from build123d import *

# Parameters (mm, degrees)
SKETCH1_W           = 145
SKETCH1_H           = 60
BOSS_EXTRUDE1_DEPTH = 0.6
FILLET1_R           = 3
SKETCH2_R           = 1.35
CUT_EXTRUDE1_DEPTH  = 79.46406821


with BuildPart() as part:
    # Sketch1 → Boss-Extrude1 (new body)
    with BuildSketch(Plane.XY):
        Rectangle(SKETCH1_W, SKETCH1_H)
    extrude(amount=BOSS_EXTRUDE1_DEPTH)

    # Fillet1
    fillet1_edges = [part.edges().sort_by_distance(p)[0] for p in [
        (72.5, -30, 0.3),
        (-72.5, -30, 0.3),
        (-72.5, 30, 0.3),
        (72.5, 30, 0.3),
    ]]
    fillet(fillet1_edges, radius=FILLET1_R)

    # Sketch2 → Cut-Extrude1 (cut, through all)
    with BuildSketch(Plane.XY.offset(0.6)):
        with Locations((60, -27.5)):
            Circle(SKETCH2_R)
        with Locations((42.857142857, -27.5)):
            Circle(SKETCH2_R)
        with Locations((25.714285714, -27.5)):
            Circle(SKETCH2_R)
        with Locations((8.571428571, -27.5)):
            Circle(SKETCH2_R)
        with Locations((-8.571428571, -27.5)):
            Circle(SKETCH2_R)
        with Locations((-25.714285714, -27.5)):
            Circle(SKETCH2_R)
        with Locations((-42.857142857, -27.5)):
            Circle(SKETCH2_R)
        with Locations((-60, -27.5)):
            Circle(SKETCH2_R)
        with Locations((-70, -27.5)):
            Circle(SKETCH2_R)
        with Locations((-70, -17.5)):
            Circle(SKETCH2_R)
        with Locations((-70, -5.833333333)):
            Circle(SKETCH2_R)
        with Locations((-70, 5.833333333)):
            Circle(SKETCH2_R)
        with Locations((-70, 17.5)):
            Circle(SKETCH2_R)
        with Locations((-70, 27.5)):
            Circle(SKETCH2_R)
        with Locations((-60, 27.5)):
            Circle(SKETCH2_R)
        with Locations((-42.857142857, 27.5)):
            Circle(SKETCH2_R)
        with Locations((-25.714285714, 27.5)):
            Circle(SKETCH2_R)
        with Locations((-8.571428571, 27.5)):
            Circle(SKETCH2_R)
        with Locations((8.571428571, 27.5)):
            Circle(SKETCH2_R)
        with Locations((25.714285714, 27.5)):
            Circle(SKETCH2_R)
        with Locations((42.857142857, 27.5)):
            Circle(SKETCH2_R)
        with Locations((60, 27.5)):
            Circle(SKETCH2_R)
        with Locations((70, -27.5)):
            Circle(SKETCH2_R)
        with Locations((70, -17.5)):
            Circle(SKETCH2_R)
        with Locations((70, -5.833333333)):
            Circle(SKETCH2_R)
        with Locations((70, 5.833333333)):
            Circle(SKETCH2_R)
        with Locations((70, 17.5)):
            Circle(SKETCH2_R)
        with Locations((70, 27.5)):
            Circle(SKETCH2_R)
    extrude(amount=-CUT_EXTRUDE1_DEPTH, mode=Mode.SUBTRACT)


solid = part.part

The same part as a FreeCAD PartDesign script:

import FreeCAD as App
import Part
import Sketcher
from FreeCAD import Vector


def edges_at(feature, points):
    """Names of the edges that pass closest to the given points."""
    edges = feature.Shape.Edges
    near = lambda p: min(range(len(edges)), key=lambda i: edges[i].distToShape(Part.Vertex(*p))[0])
    return sorted({f"Edge{near(p) + 1}" for p in points})

doc = App.newDocument("Part")
body = doc.addObject("PartDesign::Body", "Body")

sketch1 = body.newObject("Sketcher::SketchObject", "Sketch")
sketch1.AttachmentSupport = (doc.getObject("XY_Plane"), [""])
sketch1.MapMode = "FlatFace"
sketch1.addGeometry([
    Part.LineSegment(Vector(-72.5, 30, 0), Vector(-72.5, -30, 0)),
    Part.LineSegment(Vector(-72.5, -30, 0), Vector(72.5, -30, 0)),
    Part.LineSegment(Vector(72.5, -30, 0), Vector(72.5, 30, 0)),
    Part.LineSegment(Vector(72.5, 30, 0), Vector(-72.5, 30, 0)),
], False)
sketch1.addConstraint([
    Sketcher.Constraint("Coincident", 0, 2, 1, 1),
    Sketcher.Constraint("Coincident", 1, 2, 2, 1),
    Sketcher.Constraint("Coincident", 2, 2, 3, 1),
    Sketcher.Constraint("Coincident", 3, 2, 0, 1),
    Sketcher.Constraint("Vertical", 0),
    Sketcher.Constraint("Horizontal", 1),
    Sketcher.Constraint("Vertical", 2),
    Sketcher.Constraint("Horizontal", 3),
    Sketcher.Constraint("Symmetric", 0, 2, 2, 2, -1, 1),
    Sketcher.Constraint("DistanceX", 1, 1, 1, 2, 145.0),
    Sketcher.Constraint("DistanceY", 0, 2, 0, 1, 60.0),
])
pad1 = body.newObject("PartDesign::Pad", "Pad")
pad1.Profile = sketch1
pad1.Length = 0.6
doc.recompute()

fillet = body.newObject("PartDesign::Fillet", "Fillet")
fillet.Base = (pad1, edges_at(pad1, [
    (72.5, -30, 0.3),
    (-72.5, -30, 0.3),
    (-72.5, 30, 0.3),
    (72.5, 30, 0.3),
]))
fillet.Radius = 3

sketch2 = body.newObject("Sketcher::SketchObject", "Sketch001")
sketch2.AttachmentSupport = (doc.getObject("XY_Plane"), [""])
sketch2.MapMode = "FlatFace"
sketch2.AttachmentOffset = App.Placement(Vector(0, 0, 0.6), App.Rotation())
sketch2.addGeometry([
    Part.Circle(Vector(60, -27.5, 0), Vector(0, 0, 1), 1.35),
    Part.Circle(Vector(42.857143, -27.5, 0), Vector(0, 0, 1), 1.35),
    Part.Circle(Vector(25.714286, -27.5, 0), Vector(0, 0, 1), 1.35),
    Part.Circle(Vector(8.571429, -27.5, 0), Vector(0, 0, 1), 1.35),
    Part.Circle(Vector(-8.571429, -27.5, 0), Vector(0, 0, 1), 1.35),
    Part.Circle(Vector(-25.714286, -27.5, 0), Vector(0, 0, 1), 1.35),
    Part.Circle(Vector(-42.857143, -27.5, 0), Vector(0, 0, 1), 1.35),
    Part.Circle(Vector(-60, -27.5, 0), Vector(0, 0, 1), 1.35),
    Part.Circle(Vector(-70, -27.5, 0), Vector(0, 0, 1), 1.35),
    Part.Circle(Vector(-70, -17.5, 0), Vector(0, 0, 1), 1.35),
    Part.Circle(Vector(-70, -5.833333, 0), Vector(0, 0, 1), 1.35),
    Part.Circle(Vector(-70, 5.833333, 0), Vector(0, 0, 1), 1.35),
    Part.Circle(Vector(-70, 17.5, 0), Vector(0, 0, 1), 1.35),
    Part.Circle(Vector(-70, 27.5, 0), Vector(0, 0, 1), 1.35),
    Part.Circle(Vector(-60, 27.5, 0), Vector(0, 0, 1), 1.35),
    Part.Circle(Vector(-42.857143, 27.5, 0), Vector(0, 0, 1), 1.35),
    Part.Circle(Vector(-25.714286, 27.5, 0), Vector(0, 0, 1), 1.35),
    Part.Circle(Vector(-8.571429, 27.5, 0), Vector(0, 0, 1), 1.35),
    Part.Circle(Vector(8.571429, 27.5, 0), Vector(0, 0, 1), 1.35),
    Part.Circle(Vector(25.714286, 27.5, 0), Vector(0, 0, 1), 1.35),
    Part.Circle(Vector(42.857143, 27.5, 0), Vector(0, 0, 1), 1.35),
    Part.Circle(Vector(60, 27.5, 0), Vector(0, 0, 1), 1.35),
    Part.Circle(Vector(70, -27.5, 0), Vector(0, 0, 1), 1.35),
    Part.Circle(Vector(70, -17.5, 0), Vector(0, 0, 1), 1.35),
    Part.Circle(Vector(70, -5.833333, 0), Vector(0, 0, 1), 1.35),
    Part.Circle(Vector(70, 5.833333, 0), Vector(0, 0, 1), 1.35),
    Part.Circle(Vector(70, 17.5, 0), Vector(0, 0, 1), 1.35),
    Part.Circle(Vector(70, 27.5, 0), Vector(0, 0, 1), 1.35),
], False)
sketch2.addConstraint([
    Sketcher.Constraint("Equal", 0, 1),
    Sketcher.Constraint("Equal", 1, 2),
    Sketcher.Constraint("Equal", 2, 3),
    Sketcher.Constraint("Equal", 3, 4),
    Sketcher.Constraint("Equal", 4, 5),
    Sketcher.Constraint("Equal", 5, 6),
    Sketcher.Constraint("Equal", 6, 7),
    Sketcher.Constraint("Equal", 7, 8),
    Sketcher.Constraint("Equal", 8, 9),
    Sketcher.Constraint("Equal", 9, 10),
    Sketcher.Constraint("Equal", 10, 11),
    Sketcher.Constraint("Equal", 11, 12),
    Sketcher.Constraint("Equal", 12, 13),
    Sketcher.Constraint("Equal", 13, 14),
    Sketcher.Constraint("Equal", 14, 15),
    Sketcher.Constraint("Equal", 15, 16),
    Sketcher.Constraint("Equal", 16, 17),
    Sketcher.Constraint("Equal", 17, 18),
    Sketcher.Constraint("Equal", 18, 19),
    Sketcher.Constraint("Equal", 19, 20),
    Sketcher.Constraint("Equal", 20, 21),
    Sketcher.Constraint("Equal", 21, 22),
    Sketcher.Constraint("Equal", 22, 23),
    Sketcher.Constraint("Equal", 23, 24),
    Sketcher.Constraint("Equal", 24, 25),
    Sketcher.Constraint("Equal", 25, 26),
    Sketcher.Constraint("Equal", 26, 27),
    Sketcher.Constraint("Symmetric", 0, 3, 14, 3, -1, 1),
    Sketcher.Constraint("Symmetric", 1, 3, 15, 3, -1, 1),
    Sketcher.Constraint("Symmetric", 2, 3, 16, 3, -1, 1),
    Sketcher.Constraint("Symmetric", 3, 3, 17, 3, -1, 1),
    Sketcher.Constraint("Symmetric", 4, 3, 18, 3, -1, 1),
    Sketcher.Constraint("Symmetric", 5, 3, 19, 3, -1, 1),
    Sketcher.Constraint("Symmetric", 6, 3, 20, 3, -1, 1),
    Sketcher.Constraint("Symmetric", 7, 3, 21, 3, -1, 1),
    Sketcher.Constraint("Symmetric", 13, 3, 22, 3, -1, 1),
    Sketcher.Constraint("Symmetric", 12, 3, 23, 3, -1, 1),
    Sketcher.Constraint("Symmetric", 11, 3, 24, 3, -1, 1),
    Sketcher.Constraint("Symmetric", 10, 3, 25, 3, -1, 1),
    Sketcher.Constraint("Symmetric", 9, 3, 26, 3, -1, 1),
    Sketcher.Constraint("Symmetric", 8, 3, 27, 3, -1, 1),
    Sketcher.Constraint("Symmetric", 3, 3, 4, 3, -2),
    Sketcher.Constraint("Symmetric", 2, 3, 5, 3, -2),
    Sketcher.Constraint("Symmetric", 1, 3, 6, 3, -2),
    Sketcher.Constraint("Symmetric", 0, 3, 7, 3, -2),
    Sketcher.Constraint("Symmetric", 8, 3, 22, 3, -2),
    Sketcher.Constraint("Symmetric", 9, 3, 23, 3, -2),
    Sketcher.Constraint("Symmetric", 10, 3, 24, 3, -2),
    Sketcher.Constraint("Horizontal", 0, 3, 1, 3),
    Sketcher.Constraint("Horizontal", 1, 3, 2, 3),
    Sketcher.Constraint("Horizontal", 2, 3, 3, 3),
    Sketcher.Constraint("Horizontal", 7, 3, 8, 3),
    Sketcher.Constraint("Vertical", 8, 3, 9, 3),
    Sketcher.Constraint("Vertical", 9, 3, 10, 3),
    Sketcher.Constraint("Diameter", 0, 2.7),
    Sketcher.Constraint("DistanceX", -1, 1, 0, 3, 60.0),
    Sketcher.Constraint("DistanceX", 8, 3, -1, 1, 70.0),
    Sketcher.Constraint("DistanceY", 8, 3, 9, 3, 10.0),
    Sketcher.Constraint("DistanceY", 9, 3, 12, 3, 35.0),
    Sketcher.Constraint("DistanceX", -1, 1, 3, 3, 8.571429),
    Sketcher.Constraint("DistanceX", 4, 3, 1, 3, 51.428571),
    Sketcher.Constraint("DistanceX", 5, 3, 2, 3, 51.428571),
    Sketcher.Constraint("DistanceY", 10, 3, -1, 1, 5.833333),
])
pocket1 = body.newObject("PartDesign::Pocket", "Pocket")
pocket1.Profile = sketch2
pocket1.Type = "ThroughAll"

doc.recompute()
